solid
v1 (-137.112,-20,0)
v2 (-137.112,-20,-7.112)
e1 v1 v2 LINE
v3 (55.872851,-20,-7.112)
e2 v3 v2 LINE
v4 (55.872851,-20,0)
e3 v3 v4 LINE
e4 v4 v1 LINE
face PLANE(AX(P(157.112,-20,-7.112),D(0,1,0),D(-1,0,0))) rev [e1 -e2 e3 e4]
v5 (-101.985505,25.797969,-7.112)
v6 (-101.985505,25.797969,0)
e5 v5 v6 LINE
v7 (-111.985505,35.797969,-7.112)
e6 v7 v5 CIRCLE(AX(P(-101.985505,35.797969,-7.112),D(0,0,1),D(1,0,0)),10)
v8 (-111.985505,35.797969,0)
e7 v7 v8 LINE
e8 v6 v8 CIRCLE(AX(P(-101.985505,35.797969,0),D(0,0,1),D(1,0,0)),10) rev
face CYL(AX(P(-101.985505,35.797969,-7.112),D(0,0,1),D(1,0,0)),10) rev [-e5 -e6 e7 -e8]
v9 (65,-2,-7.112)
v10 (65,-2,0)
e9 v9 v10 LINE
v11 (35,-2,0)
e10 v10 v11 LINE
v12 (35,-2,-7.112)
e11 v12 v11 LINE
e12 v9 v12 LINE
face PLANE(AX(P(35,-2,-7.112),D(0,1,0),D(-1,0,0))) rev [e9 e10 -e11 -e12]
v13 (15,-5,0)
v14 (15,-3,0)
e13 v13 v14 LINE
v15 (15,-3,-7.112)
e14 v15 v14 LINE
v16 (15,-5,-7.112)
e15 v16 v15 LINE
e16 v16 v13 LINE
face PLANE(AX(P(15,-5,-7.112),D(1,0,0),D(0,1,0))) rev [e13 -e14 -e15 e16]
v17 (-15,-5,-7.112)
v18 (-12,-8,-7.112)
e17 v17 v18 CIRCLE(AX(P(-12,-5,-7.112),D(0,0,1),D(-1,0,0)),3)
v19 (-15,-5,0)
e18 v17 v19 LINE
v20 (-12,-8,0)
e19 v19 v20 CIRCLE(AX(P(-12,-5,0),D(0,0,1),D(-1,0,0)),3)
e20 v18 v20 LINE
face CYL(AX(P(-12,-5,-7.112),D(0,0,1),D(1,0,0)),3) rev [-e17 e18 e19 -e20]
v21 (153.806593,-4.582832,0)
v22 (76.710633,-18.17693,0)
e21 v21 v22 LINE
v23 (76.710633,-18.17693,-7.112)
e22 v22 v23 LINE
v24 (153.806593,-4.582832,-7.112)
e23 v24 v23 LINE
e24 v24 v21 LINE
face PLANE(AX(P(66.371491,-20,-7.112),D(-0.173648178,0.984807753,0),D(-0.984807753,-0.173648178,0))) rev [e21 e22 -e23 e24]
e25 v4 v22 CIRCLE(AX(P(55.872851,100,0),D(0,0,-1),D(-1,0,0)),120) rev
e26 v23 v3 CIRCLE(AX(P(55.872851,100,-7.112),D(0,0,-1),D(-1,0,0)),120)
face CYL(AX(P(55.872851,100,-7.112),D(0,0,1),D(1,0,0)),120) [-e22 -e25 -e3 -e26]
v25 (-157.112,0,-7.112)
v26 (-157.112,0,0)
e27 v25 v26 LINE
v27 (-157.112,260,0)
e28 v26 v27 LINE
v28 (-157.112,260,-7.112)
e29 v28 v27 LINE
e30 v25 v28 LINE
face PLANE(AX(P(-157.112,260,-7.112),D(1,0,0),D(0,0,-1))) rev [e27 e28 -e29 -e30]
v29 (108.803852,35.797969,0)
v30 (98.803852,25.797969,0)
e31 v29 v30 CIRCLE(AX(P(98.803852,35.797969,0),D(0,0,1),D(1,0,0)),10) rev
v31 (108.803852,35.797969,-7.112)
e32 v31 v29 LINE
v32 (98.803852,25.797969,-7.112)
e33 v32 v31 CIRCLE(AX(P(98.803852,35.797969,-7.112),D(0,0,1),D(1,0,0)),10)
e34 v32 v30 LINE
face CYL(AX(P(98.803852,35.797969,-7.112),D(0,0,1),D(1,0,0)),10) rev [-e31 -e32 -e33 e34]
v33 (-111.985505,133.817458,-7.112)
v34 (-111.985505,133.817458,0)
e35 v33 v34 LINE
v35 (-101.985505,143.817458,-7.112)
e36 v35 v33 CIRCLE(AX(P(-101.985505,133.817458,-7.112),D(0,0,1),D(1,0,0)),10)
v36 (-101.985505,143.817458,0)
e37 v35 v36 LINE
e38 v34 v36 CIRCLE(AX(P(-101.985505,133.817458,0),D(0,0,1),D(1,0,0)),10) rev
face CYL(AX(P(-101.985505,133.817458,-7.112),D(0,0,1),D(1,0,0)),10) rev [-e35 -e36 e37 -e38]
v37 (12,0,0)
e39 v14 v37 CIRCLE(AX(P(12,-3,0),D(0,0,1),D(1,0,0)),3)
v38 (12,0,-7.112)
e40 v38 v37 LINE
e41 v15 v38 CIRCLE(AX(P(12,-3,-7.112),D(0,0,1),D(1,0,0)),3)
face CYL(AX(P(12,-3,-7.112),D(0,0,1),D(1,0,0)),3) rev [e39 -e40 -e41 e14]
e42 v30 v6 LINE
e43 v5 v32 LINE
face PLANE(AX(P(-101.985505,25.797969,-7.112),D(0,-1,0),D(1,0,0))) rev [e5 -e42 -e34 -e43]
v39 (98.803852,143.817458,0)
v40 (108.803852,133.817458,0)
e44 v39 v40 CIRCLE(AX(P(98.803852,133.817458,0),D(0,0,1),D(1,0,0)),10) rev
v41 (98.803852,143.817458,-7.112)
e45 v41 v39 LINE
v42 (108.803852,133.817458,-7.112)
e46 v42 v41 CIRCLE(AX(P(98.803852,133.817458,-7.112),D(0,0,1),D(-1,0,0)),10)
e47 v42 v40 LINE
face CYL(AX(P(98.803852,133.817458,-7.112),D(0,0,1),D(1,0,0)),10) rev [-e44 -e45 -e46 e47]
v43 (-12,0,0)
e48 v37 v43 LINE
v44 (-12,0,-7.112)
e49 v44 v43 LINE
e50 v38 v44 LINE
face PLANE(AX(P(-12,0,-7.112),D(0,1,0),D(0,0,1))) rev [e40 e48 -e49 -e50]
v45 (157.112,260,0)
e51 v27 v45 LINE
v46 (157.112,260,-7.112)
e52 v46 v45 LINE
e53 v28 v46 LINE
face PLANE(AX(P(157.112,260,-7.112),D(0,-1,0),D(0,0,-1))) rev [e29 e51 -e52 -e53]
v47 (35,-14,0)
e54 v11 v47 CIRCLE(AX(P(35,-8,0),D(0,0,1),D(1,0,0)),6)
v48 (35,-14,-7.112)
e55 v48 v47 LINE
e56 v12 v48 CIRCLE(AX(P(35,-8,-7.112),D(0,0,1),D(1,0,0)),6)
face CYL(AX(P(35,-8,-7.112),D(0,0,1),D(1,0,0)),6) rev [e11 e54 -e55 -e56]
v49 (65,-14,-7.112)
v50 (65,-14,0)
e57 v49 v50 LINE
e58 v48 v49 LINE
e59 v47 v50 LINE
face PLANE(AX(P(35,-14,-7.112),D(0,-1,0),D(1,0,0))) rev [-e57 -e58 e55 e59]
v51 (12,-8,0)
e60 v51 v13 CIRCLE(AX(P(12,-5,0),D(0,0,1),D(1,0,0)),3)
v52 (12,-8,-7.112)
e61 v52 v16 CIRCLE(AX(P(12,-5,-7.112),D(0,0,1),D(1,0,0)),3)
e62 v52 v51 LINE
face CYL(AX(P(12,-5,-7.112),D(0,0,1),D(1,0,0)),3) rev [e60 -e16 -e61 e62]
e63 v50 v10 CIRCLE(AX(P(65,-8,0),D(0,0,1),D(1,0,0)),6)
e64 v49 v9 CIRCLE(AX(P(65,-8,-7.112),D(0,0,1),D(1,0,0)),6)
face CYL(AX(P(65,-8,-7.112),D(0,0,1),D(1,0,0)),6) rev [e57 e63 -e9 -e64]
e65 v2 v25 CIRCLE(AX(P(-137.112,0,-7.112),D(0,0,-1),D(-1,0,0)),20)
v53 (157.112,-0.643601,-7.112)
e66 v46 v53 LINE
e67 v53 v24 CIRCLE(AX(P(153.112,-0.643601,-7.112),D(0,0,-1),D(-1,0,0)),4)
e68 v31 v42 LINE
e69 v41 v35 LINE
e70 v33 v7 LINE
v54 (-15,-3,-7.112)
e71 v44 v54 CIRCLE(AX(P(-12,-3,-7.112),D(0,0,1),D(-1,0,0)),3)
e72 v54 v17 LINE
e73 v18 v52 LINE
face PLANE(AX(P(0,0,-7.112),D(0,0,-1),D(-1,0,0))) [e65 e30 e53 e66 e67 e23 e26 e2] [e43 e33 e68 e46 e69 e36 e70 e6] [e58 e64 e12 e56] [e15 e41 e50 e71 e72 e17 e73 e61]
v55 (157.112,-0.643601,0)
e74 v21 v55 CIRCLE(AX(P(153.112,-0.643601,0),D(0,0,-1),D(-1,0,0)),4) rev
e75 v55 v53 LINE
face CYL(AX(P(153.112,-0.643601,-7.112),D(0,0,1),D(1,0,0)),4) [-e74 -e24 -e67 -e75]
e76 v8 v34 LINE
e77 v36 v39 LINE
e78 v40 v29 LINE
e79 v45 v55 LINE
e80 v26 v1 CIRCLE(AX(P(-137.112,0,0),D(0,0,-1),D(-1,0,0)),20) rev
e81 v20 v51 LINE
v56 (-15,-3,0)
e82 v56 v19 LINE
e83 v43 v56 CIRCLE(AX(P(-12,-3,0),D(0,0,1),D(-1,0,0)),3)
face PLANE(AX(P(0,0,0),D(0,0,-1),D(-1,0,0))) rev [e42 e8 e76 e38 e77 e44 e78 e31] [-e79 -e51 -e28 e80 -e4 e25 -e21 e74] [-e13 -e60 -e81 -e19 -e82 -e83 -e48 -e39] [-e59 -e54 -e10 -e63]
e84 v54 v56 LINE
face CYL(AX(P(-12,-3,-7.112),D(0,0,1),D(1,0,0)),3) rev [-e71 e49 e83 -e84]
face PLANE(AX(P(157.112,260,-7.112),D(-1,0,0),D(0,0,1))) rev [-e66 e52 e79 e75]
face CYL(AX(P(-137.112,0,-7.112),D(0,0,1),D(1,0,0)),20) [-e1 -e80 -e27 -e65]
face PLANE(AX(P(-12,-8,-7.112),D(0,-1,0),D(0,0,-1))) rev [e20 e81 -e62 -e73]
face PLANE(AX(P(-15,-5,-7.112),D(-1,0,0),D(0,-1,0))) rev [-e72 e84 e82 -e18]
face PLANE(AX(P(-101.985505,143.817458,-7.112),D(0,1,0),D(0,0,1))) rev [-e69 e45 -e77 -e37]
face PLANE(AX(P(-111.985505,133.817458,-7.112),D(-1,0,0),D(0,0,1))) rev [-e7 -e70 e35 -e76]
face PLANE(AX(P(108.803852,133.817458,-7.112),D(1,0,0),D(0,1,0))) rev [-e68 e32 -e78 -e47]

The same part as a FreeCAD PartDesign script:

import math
import FreeCAD as App
import Part
import Sketcher
from FreeCAD import Vector
Q = App.Units.Quantity


def edges_at(feature, points):
    """Names of the edges that pass closest to the given points."""
    edges = feature.Shape.Edges
    near = lambda p: min(range(len(edges)), key=lambda i: edges[i].distToShape(Part.Vertex(*p))[0])
    return sorted({f"Edge{near(p) + 1}" for p in points})

doc = App.newDocument("Part")
params = doc.addObject("Spreadsheet::Sheet", "Params")
for row, (alias, value) in enumerate([
    ("sketch1_height", "280 mm"),
    ("pad1_length", "7.112 mm"),
    ("sketch2_radius", "10 mm"),
    ("sketch3_radius", "3 mm"),
    ("sketch3_width", "24 mm"),
    ("sketch3_height", "2 mm"),
    ("sketch4_height", "16 mm"),
    ("fillet_radius", "120 mm"),
    ("fillet2_radius", "20 mm"),
    ("fillet3_radius", "4 mm"),
    ("sketch5_radius", "6 mm"),
    ("sketch5_width", "30 mm"),
], start=1):
    params.set(f"A{row}", alias)
    params.set(f"B{row}", "=" + value)
    params.setAlias(f"B{row}", alias)

body = doc.addObject("PartDesign::Body", "Body")

# Sketch on XY plane
sketch1 = body.newObject("Sketcher::SketchObject", "Sketch")
sketch1.AttachmentSupport = (doc.getObject("XY_Plane"), [""])
sketch1.MapMode = "FlatFace"
sketch1.addGeometry(Part.LineSegment(Vector(-157, -20, 0), Vector(-157, 260, 0)), False)
sketch1.addGeometry(Part.LineSegment(Vector(-157, 260, 0), Vector(157, 260, 0)), False)
sketch1.addGeometry(Part.LineSegment(Vector(157, 260, 0), Vector(157, -20, 0)), False)
sketch1.addGeometry(Part.LineSegment(Vector(157, -20, 0), Vector(-157, -20, 0)), False)
sketch1.addConstraint(Sketcher.Constraint("Coincident", 0, 2, 1, 1))
sketch1.addConstraint(Sketcher.Constraint("Coincident", 1, 2, 2, 1))
sketch1.addConstraint(Sketcher.Constraint("Coincident", 2, 2, 3, 1))
sketch1.addConstraint(Sketcher.Constraint("Coincident", 3, 2, 0, 1))
sketch1.addConstraint(Sketcher.Constraint("Vertical", 0))
sketch1.addConstraint(Sketcher.Constraint("Horizontal", 1))
sketch1.addConstraint(Sketcher.Constraint("Vertical", 2))
sketch1.addConstraint(Sketcher.Constraint("Horizontal", 3))
sketch1.addConstraint(Sketcher.Constraint("DistanceY", 0, 1, 0, 2, 280.0))
sketch1.addConstraint(Sketcher.Constraint("DistanceY", -1, 1, 0, 2, 260.0))
sketch1.addConstraint(Sketcher.Constraint("DistanceX", 1, 1, 1, 2, 314.224))
sketch1.addConstraint(Sketcher.Constraint("DistanceX", 0, 2, -1, 1, 157.112))
sketch1.setExpression("Constraints[8]", "Params.sketch1_height")
pad1 = body.newObject("PartDesign::Pad", "Pad")
pad1.Profile = sketch1
pad1.setExpression("Length", "Params.pad1_length")
pad1.Reversed = True

# Sketch on XY plane
sketch2 = body.newObject("Sketcher::SketchObject", "Sketch001")
sketch2.AttachmentSupport = (doc.getObject("XY_Plane"), [""])
sketch2.MapMode = "FlatFace"
sketch2.addGeometry(Part.LineSegment(Vector(99, 144, 0), Vector(-102, 144, 0)), False)
sketch2.addGeometry(Part.ArcOfCircle(Part.Circle(Vector(-102, 134, 0), Vector(0, 0, 1), 10), math.radians(90), math.radians(180)), False)
sketch2.addGeometry(Part.LineSegment(Vector(-112, 134, 0), Vector(-112, 36, 0)), False)
sketch2.addGeometry(Part.ArcOfCircle(Part.Circle(Vector(-102, 36, 0), Vector(0, 0, 1), 10), math.radians(180), math.radians(270)), False)
sketch2.addGeometry(Part.LineSegment(Vector(-102, 26, 0), Vector(99, 26, 0)), False)
sketch2.addGeometry(Part.ArcOfCircle(Part.Circle(Vector(99, 36, 0), Vector(0, 0, 1), 10), math.radians(-90), math.radians(0)), False)
sketch2.addGeometry(Part.LineSegment(Vector(109, 36, 0), Vector(109, 134, 0)), False)
sketch2.addGeometry(Part.ArcOfCircle(Part.Circle(Vector(99, 134, 0), Vector(0, 0, 1), 10), math.radians(0), math.radians(90)), False)
sketch2.addConstraint(Sketcher.Constraint("Tangent", 0, 2, 1, 1))
sketch2.addConstraint(Sketcher.Constraint("Tangent", 1, 2, 2, 1))
sketch2.addConstraint(Sketcher.Constraint("Tangent", 2, 2, 3, 1))
sketch2.addConstraint(Sketcher.Constraint("Tangent", 3, 2, 4, 1))
sketch2.addConstraint(Sketcher.Constraint("Tangent", 4, 2, 5, 1))
sketch2.addConstraint(Sketcher.Constraint("Tangent", 5, 2, 6, 1))
sketch2.addConstraint(Sketcher.Constraint("Tangent", 6, 2, 7, 1))
sketch2.addConstraint(Sketcher.Constraint("Tangent", 7, 2, 0, 1))
sketch2.addConstraint(Sketcher.Constraint("Horizontal", 0))
sketch2.addConstraint(Sketcher.Constraint("Vertical", 2))
sketch2.addConstraint(Sketcher.Constraint("Horizontal", 4))
sketch2.addConstraint(Sketcher.Constraint("Vertical", 6))
sketch2.addConstraint(Sketcher.Constraint("Equal", 1, 3))
sketch2.addConstraint(Sketcher.Constraint("Equal", 3, 5))
sketch2.addConstraint(Sketcher.Constraint("Equal", 5, 7))
sketch2.addConstraint(Sketcher.Constraint("Radius", 1, 10.0))
sketch2.addConstraint(Sketcher.Constraint("DistanceY", 2, 2, 2, 1, 98.019489))
sketch2.addConstraint(Sketcher.Constraint("DistanceX", 0, 2, 0, 1, 200.789357))
sketch2.addConstraint(Sketcher.Constraint("DistanceY", -1, 1, 3, 3, 35.797969))
sketch2.addConstraint(Sketcher.Constraint("DistanceX", -1, 1, 5, 3, 98.803852))
sketch2.setExpression("Constraints[15]", "Params.sketch2_radius")
pocket1 = body.newObject("PartDesign::Pocket", "Pocket")
pocket1.Profile = sketch2
pocket1.Type = "ThroughAll"
pocket1.Midplane = True

# Sketch on XY plane
sketch3 = body.newObject("Sketcher::SketchObject", "Sketch002")
sketch3.AttachmentSupport = (doc.getObject("XY_Plane"), [""])
sketch3.MapMode = "FlatFace"
sketch3.addGeometry(Part.LineSegment(Vector(-12, -8, 0), Vector(12, -8, 0)), False)
sketch3.addGeometry(Part.ArcOfCircle(Part.Circle(Vector(12, -5, 0), Vector(0, 0, 1), 3), math.radians(-90), math.radians(0)), False)
sketch3.addGeometry(Part.LineSegment(Vector(15, -5, 0), Vector(15, -3, 0)), False)
sketch3.addGeometry(Part.ArcOfCircle(Part.Circle(Vector(12, -3, 0), Vector(0, 0, 1), 3), math.radians(0), math.radians(90)), False)
sketch3.addGeometry(Part.LineSegment(Vector(12, 0, 0), Vector(-12, 0, 0)), False)
sketch3.addGeometry(Part.ArcOfCircle(Part.Circle(Vector(-12, -3, 0), Vector(0, 0, 1), 3), math.radians(90), math.radians(180)), False)
sketch3.addGeometry(Part.LineSegment(Vector(-15, -3, 0), Vector(-15, -5, 0)), False)
sketch3.addGeometry(Part.ArcOfCircle(Part.Circle(Vector(-12, -5, 0), Vector(0, 0, 1), 3), math.radians(180), math.radians(270)), False)
sketch3.addConstraint(Sketcher.Constraint("Tangent", 0, 2, 1, 1))
sketch3.addConstraint(Sketcher.Constraint("Tangent", 1, 2, 2, 1))
sketch3.addConstraint(Sketcher.Constraint("Tangent", 2, 2, 3, 1))
sketch3.addConstraint(Sketcher.Constraint("Tangent", 3, 2, 4, 1))
sketch3.addConstraint(Sketcher.Constraint("Tangent", 4, 2, 5, 1))
sketch3.addConstraint(Sketcher.Constraint("Tangent", 5, 2, 6, 1))
sketch3.addConstraint(Sketcher.Constraint("Tangent", 6, 2, 7, 1))
sketch3.addConstraint(Sketcher.Constraint("Tangent", 7, 2, 0, 1))
sketch3.addConstraint(Sketcher.Constraint("Horizontal", 0))
sketch3.addConstraint(Sketcher.Constraint("Vertical", 2))
sketch3.addConstraint(Sketcher.Constraint("Horizontal", 4))
sketch3.addConstraint(Sketcher.Constraint("Vertical", 6))
sketch3.addConstraint(Sketcher.Constraint("Equal", 1, 3))
sketch3.addConstraint(Sketcher.Constraint("Equal", 3, 5))
sketch3.addConstraint(Sketcher.Constraint("Equal", 5, 7))
sketch3.addConstraint(Sketcher.Constraint("Symmetric", 3, 2, 4, 2, -1, 1))
sketch3.addConstraint(Sketcher.Constraint("Radius", 1, 3.0))
sketch3.addConstraint(Sketcher.Constraint("DistanceX", 0, 1, 0, 2, 24.0))
sketch3.addConstraint(Sketcher.Constraint("DistanceY", 2, 1, 2, 2, 2.0))
sketch3.setExpression("Constraints[16]", "Params.sketch3_radius")
sketch3.setExpression("Constraints[17]", "Params.sketch3_width")
sketch3.setExpression("Constraints[18]", "Params.sketch3_height")
pocket2 = body.newObject("PartDesign::Pocket", "Pocket001")
pocket2.Profile = sketch3
pocket2.Type = "ThroughAll"

# Sketch on XY plane
sketch4 = body.newObject("Sketcher::SketchObject", "Sketch003")
sketch4.AttachmentSupport = (doc.getObject("XY_Plane"), [""])
sketch4.MapMode = "FlatFace"
sketch4.addGeometry(Part.LineSegment(Vector(157, -4, 0), Vector(66, -20, 0)), False)
sketch4.addGeometry(Part.LineSegment(Vector(66, -20, 0), Vector(157, -20, 0)), False)
sketch4.addGeometry(Part.LineSegment(Vector(157, -20, 0), Vector(157, -4, 0)), False)
sketch4.addConstraint(Sketcher.Constraint("Coincident", 0, 2, 1, 1))
sketch4.addConstraint(Sketcher.Constraint("Coincident", 1, 2, 2, 1))
sketch4.addConstraint(Sketcher.Constraint("Coincident", 2, 2, 0, 1))
sketch4.addConstraint(Sketcher.Constraint("Horizontal", 1))
sketch4.addConstraint(Sketcher.Constraint("Vertical", 2))
sketch4.addConstraint(Sketcher.Constraint("DistanceY", 2, 1, 2, 2, 16.0))
sketch4.addConstraint(Sketcher.Constraint("Angle", 0, Q("-170 deg")))
sketch4.addConstraint(Sketcher.Constraint("DistanceY", 0, 2, -1, 1, 20.0))
sketch4.addConstraint(Sketcher.Constraint("DistanceX", -1, 1, 1, 2, 157.112))
sketch4.setExpression("Constraints[5]", "Params.sketch4_height")
pocket3 = body.newObject("PartDesign::Pocket", "Pocket002")
pocket3.Profile = sketch4
pocket3.Type = "ThroughAll"
doc.recompute()

fillet = body.newObject("PartDesign::Fillet", "Fillet")
fillet.Base = (pocket3, edges_at(pocket3, [(66.371, -20, -3.556)]))
fillet.setExpression("Radius", "Params.fillet_radius")
doc.recompute()

fillet2 = body.newObject("PartDesign::Fillet", "Fillet001")
fillet2.Base = (fillet, edges_at(fillet, [(-157.112, -20, -3.556)]))
fillet2.setExpression("Radius", "Params.fillet2_radius")
doc.recompute()

fillet3 = body.newObject("PartDesign::Fillet", "Fillet002")
fillet3.Base = (fillet2, edges_at(fillet2, [(157.112, -4, -3.556)]))
fillet3.setExpression("Radius", "Params.fillet3_radius")

# Sketch on XY plane
sketch5 = body.newObject("Sketcher::SketchObject", "Sketch004")
sketch5.AttachmentSupport = (doc.getObject("XY_Plane"), [""])
sketch5.MapMode = "FlatFace"
sketch5.addGeometry(Part.LineSegment(Vector(65, -2, 0), Vector(35, -2, 0)), False)
sketch5.addGeometry(Part.ArcOfCircle(Part.Circle(Vector(35, -8, 0), Vector(0, 0, 1), 6), math.radians(90), math.radians(270)), False)
sketch5.addGeometry(Part.LineSegment(Vector(35, -14, 0), Vector(65, -14, 0)), False)
sketch5.addGeometry(Part.ArcOfCircle(Part.Circle(Vector(65, -8, 0), Vector(0, 0, 1), 6), math.radians(-90), math.radians(90)), False)
sketch5.addConstraint(Sketcher.Constraint("Tangent", 0, 2, 1, 1))
sketch5.addConstraint(Sketcher.Constraint("Tangent", 1, 2, 2, 1))
sketch5.addConstraint(Sketcher.Constraint("Tangent", 2, 2, 3, 1))
sketch5.addConstraint(Sketcher.Constraint("Tangent", 3, 2, 0, 1))
sketch5.addConstraint(Sketcher.Constraint("Horizontal", 0))
sketch5.addConstraint(Sketcher.Constraint("Horizontal", 2))
sketch5.addConstraint(Sketcher.Constraint("Radius", 1, 6.0))
sketch5.addConstraint(Sketcher.Constraint("DistanceX", 0, 2, 0, 1, 30.0))
sketch5.addConstraint(Sketcher.Constraint("DistanceX", -1, 1, 1, 3, 35.0))
sketch5.addConstraint(Sketcher.Constraint("DistanceY", 1, 3, -1, 1, 8.0))
sketch5.setExpression("Constraints[6]", "Params.sketch5_radius")
sketch5.setExpression("Constraints[7]", "Params.sketch5_width")
pocket4 = body.newObject("PartDesign::Pocket", "Pocket003")
pocket4.Profile = sketch5
pocket4.Type = "ThroughAll"

doc.recompute()
